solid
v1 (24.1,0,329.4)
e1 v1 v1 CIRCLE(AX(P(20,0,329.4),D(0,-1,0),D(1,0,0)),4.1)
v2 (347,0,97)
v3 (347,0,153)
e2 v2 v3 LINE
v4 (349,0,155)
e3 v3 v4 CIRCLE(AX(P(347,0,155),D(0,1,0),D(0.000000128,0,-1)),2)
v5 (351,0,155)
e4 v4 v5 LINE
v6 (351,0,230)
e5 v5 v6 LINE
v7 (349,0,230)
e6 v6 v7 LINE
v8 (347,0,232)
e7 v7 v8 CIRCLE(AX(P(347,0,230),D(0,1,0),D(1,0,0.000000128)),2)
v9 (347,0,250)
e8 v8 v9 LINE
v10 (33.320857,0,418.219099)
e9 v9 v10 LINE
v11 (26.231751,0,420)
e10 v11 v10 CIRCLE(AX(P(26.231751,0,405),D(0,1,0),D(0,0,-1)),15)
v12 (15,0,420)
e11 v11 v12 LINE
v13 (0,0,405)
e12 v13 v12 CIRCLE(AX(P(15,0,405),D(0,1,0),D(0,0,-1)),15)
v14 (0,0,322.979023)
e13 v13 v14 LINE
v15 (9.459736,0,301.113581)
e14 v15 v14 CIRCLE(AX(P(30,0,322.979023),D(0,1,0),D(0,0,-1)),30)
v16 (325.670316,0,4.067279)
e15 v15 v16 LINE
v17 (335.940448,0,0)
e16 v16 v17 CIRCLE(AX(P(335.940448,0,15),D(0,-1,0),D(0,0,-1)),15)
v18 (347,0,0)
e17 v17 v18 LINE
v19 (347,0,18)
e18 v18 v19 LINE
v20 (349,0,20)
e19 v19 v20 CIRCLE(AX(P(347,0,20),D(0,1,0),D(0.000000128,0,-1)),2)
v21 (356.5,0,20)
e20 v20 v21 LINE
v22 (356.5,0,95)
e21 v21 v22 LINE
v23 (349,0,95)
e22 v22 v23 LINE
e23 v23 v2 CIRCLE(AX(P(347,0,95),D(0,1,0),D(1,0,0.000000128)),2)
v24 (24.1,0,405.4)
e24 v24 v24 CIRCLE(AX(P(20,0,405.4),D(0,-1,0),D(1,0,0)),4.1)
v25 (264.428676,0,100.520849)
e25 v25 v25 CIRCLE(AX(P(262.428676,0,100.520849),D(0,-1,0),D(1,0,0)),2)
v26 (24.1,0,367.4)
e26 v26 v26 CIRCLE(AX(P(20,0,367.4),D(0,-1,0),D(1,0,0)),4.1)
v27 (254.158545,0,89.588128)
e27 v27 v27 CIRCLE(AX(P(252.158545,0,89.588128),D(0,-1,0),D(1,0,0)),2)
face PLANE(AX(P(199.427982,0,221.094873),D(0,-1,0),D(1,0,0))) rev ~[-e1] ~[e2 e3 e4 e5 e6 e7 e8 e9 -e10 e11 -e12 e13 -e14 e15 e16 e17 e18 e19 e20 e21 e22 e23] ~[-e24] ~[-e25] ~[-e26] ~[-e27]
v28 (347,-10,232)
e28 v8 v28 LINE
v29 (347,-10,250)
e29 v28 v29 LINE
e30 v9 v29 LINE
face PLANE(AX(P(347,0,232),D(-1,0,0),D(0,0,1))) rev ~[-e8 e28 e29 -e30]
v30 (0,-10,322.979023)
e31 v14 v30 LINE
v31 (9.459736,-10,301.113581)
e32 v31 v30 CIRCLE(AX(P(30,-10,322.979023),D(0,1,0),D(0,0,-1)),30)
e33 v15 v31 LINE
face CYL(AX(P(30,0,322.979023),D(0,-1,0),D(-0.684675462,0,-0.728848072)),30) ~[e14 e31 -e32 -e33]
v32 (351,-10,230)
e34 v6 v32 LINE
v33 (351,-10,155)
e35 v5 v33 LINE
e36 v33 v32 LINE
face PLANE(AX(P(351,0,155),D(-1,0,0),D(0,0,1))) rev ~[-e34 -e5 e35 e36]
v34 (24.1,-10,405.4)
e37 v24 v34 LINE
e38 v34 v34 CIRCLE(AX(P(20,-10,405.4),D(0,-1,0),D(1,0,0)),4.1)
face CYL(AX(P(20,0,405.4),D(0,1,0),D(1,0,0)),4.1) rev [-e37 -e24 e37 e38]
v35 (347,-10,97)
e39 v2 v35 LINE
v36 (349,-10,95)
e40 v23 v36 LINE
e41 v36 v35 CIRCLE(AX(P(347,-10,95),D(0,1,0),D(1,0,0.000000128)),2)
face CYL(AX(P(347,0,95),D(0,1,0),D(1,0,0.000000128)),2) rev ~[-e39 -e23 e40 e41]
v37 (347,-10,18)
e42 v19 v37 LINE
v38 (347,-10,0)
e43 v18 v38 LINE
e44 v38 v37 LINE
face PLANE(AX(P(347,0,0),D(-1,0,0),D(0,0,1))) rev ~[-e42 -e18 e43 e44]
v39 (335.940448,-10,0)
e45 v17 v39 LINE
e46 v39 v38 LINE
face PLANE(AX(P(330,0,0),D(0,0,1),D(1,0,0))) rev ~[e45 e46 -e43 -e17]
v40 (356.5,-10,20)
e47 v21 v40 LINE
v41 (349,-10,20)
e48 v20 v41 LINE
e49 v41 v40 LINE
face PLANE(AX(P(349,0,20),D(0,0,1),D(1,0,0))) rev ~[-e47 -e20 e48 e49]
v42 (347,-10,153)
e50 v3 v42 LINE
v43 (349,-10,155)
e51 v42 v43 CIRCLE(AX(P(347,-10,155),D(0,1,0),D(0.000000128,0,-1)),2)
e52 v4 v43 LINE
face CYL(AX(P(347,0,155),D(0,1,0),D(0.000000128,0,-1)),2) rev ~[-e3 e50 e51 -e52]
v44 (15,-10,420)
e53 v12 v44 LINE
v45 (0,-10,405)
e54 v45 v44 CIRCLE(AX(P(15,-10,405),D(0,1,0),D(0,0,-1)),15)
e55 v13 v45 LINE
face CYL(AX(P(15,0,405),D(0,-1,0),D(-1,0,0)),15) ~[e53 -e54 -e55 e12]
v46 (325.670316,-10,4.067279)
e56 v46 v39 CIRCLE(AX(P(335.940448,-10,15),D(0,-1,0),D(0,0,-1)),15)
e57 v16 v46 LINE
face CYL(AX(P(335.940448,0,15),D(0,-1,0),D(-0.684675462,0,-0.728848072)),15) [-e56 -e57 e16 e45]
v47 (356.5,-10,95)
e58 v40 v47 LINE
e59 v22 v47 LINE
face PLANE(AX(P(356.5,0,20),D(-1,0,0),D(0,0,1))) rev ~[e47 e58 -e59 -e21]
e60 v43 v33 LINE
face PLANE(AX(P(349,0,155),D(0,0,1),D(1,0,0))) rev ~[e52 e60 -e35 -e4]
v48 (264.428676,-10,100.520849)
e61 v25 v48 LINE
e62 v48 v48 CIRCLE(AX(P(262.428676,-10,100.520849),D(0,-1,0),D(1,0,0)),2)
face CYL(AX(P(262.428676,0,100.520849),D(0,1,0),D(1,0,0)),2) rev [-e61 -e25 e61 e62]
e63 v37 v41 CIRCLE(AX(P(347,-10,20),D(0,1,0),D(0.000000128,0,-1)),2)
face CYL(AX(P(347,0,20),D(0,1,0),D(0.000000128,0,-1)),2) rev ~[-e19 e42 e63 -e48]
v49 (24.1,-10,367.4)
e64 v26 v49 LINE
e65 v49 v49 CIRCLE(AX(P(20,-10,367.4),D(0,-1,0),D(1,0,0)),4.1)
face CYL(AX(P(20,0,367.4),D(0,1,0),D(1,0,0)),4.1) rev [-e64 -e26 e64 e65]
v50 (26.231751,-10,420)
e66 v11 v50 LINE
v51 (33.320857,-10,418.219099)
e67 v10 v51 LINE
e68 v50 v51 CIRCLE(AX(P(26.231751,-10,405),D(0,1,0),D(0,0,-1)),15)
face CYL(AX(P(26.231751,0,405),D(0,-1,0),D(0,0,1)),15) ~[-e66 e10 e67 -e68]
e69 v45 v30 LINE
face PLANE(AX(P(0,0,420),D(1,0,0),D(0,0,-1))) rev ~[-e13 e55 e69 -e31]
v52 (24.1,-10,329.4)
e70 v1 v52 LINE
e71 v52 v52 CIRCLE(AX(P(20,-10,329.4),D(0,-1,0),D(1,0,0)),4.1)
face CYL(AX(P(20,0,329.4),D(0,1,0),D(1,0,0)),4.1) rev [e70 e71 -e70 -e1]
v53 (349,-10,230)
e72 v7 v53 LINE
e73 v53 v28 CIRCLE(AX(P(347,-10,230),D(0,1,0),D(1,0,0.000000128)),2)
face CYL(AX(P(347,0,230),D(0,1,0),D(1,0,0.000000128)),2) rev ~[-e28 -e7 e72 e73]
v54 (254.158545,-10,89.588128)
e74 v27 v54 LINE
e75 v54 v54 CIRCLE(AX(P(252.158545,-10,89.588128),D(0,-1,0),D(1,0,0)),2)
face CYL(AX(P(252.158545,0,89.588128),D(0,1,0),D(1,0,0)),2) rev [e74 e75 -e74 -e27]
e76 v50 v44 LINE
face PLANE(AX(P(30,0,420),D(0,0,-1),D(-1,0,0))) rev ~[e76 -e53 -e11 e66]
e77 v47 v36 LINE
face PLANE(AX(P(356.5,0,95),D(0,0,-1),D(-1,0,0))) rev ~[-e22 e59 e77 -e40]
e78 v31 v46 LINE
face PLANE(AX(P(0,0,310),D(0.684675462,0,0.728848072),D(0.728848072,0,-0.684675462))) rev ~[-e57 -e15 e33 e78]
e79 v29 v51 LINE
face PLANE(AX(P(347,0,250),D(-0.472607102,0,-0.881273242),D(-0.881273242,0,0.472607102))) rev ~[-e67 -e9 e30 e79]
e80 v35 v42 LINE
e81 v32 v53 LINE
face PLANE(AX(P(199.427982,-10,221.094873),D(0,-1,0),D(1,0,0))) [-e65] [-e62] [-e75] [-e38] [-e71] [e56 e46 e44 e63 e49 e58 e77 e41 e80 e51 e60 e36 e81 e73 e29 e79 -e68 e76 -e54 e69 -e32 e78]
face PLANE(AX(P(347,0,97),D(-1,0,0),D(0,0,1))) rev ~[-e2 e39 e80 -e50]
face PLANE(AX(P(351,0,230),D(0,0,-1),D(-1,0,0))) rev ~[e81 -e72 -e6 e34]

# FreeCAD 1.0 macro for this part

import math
import FreeCAD as App
import Part
import Sketcher


def edges_at(feature, points):
    """Names of the edges that pass closest to the given points."""
    edges = feature.Shape.Edges
    near = lambda p: min(range(len(edges)), key=lambda i: edges[i].distToShape(Part.Vertex(*p))[0])
    return sorted({f"Edge{near(p) + 1}" for p in points})

doc = App.newDocument("Part")
params = doc.addObject("Spreadsheet::Sheet", "Params")
for row, (alias, value) in enumerate([
    ("sketch1_diameter", "4 mm"),
    ("sketch1_diameter2", "8.2 mm"),
    ("sketch1_width", "17 mm"),
    ("sketch1_width2", "2 mm"),
    ("sketch1_width3", "30 mm"),
    ("pad1_length", "10 mm"),
    ("fillet_radius", "30 mm"),
    ("fillet2_radius", "15 mm"),
], start=1):
    params.set(f"A{row}", alias)
    params.set(f"B{row}", "=" + value)
    params.setAlias(f"B{row}", alias)

body = doc.addObject("PartDesign::Body", "Body")

sketch1 = doc.addObject("Sketcher::SketchObject", "Sketch")
body.addObject(sketch1)
sketch1.AttachmentSupport = (doc.XZ_Plane, [""])
sketch1.MapMode = "FlatFace"
sketch1.addGeometry([
    Part.LineSegment(App.Vector(0, 310, 0), App.Vector(330, 0, 0)),
    Part.LineSegment(App.Vector(330, 0, 0), App.Vector(347, 0, 0)),
    Part.LineSegment(App.Vector(347, 0, 0), App.Vector(347, 18, 0)),
    Part.ArcOfCircle(Part.Circle(App.Vector(347, 20, 0), App.Vector(0, 0, 1), 2), math.radians(0), math.radians(270)),
    Part.LineSegment(App.Vector(349, 20, 0), App.Vector(356.5, 20, 0)),
    Part.LineSegment(App.Vector(356.5, 20, 0), App.Vector(356.5, 95, 0)),
    Part.LineSegment(App.Vector(356.5, 95, 0), App.Vector(349, 95, 0)),
    Part.ArcOfCircle(Part.Circle(App.Vector(347, 95, 0), App.Vector(0, 0, 1), 2), math.radians(90), math.radians(360)),
    Part.LineSegment(App.Vector(347, 97, 0), App.Vector(347, 153, 0)),
    Part.ArcOfCircle(Part.Circle(App.Vector(347, 155, 0), App.Vector(0, 0, 1), 2), math.radians(0), math.radians(270)),
    Part.LineSegment(App.Vector(349, 155, 0), App.Vector(351, 155, 0)),
    Part.LineSegment(App.Vector(351, 155, 0), App.Vector(351, 230, 0)),
    Part.LineSegment(App.Vector(351, 230, 0), App.Vector(349, 230, 0)),
    Part.ArcOfCircle(Part.Circle(App.Vector(347, 230, 0), App.Vector(0, 0, 1), 2), math.radians(90), math.radians(360)),
    Part.LineSegment(App.Vector(347, 232, 0), App.Vector(347, 250, 0)),
    Part.LineSegment(App.Vector(347, 250, 0), App.Vector(30, 420, 0)),
    Part.LineSegment(App.Vector(30, 420, 0), App.Vector(0, 420, 0)),
    Part.LineSegment(App.Vector(0, 420, 0), App.Vector(0, 310, 0)),
    Part.Circle(App.Vector(252.2, 89.6, 0), App.Vector(0, 0, 1), 2),
    Part.Circle(App.Vector(262.4, 100.5, 0), App.Vector(0, 0, 1), 2),
    Part.Circle(App.Vector(20, 329.4, 0), App.Vector(0, 0, 1), 4.1),
    Part.Circle(App.Vector(20, 367.4, 0), App.Vector(0, 0, 1), 4.1),
    Part.Circle(App.Vector(20, 405.4, 0), App.Vector(0, 0, 1), 4.1),
], False)
sketch1.addConstraint([
    Sketcher.Constraint("Coincident", 0, 2, 1, 1),
    Sketcher.Constraint("Coincident", 1, 2, 2, 1),
    Sketcher.Constraint("Coincident", 2, 2, 3, 2),
    Sketcher.Constraint("Coincident", 3, 1, 4, 1),
    Sketcher.Constraint("Coincident", 4, 2, 5, 1),
    Sketcher.Constraint("Coincident", 5, 2, 6, 1),
    Sketcher.Constraint("Coincident", 6, 2, 7, 2),
    Sketcher.Constraint("Coincident", 7, 1, 8, 1),
    Sketcher.Constraint("Coincident", 8, 2, 9, 2),
    Sketcher.Constraint("Coincident", 9, 1, 10, 1),
    Sketcher.Constraint("Coincident", 10, 2, 11, 1),
    Sketcher.Constraint("Coincident", 11, 2, 12, 1),
    Sketcher.Constraint("Coincident", 12, 2, 13, 2),
    Sketcher.Constraint("Coincident", 13, 1, 14, 1),
    Sketcher.Constraint("Coincident", 14, 2, 15, 1),
    Sketcher.Constraint("Coincident", 15, 2, 16, 1),
    Sketcher.Constraint("Coincident", 16, 2, 17, 1),
    Sketcher.Constraint("Coincident", 17, 2, 0, 1),
    Sketcher.Constraint("Horizontal", 1),
    Sketcher.Constraint("Vertical", 2),
    Sketcher.Constraint("Horizontal", 4),
    Sketcher.Constraint("Vertical", 5),
    Sketcher.Constraint("Horizontal", 6),
    Sketcher.Constraint("Vertical", 8),
    Sketcher.Constraint("Horizontal", 10),
    Sketcher.Constraint("Vertical", 11),
    Sketcher.Constraint("Horizontal", 12),
    Sketcher.Constraint("Vertical", 14),
    Sketcher.Constraint("Horizontal", 16),
    Sketcher.Constraint("Vertical", 17),
    Sketcher.Constraint("Equal", 3, 7),
    Sketcher.Constraint("Equal", 7, 9),
    Sketcher.Constraint("Equal", 9, 13),
    Sketcher.Constraint("Equal", 13, 18),
    Sketcher.Constraint("Equal", 18, 19),
    Sketcher.Constraint("Equal", 20, 21),
    Sketcher.Constraint("Equal", 21, 22),
    Sketcher.Constraint("PointOnObject", 0, 2, -1),
    Sketcher.Constraint("PointOnObject", 16, 2, -2),
    Sketcher.Constraint("Horizontal", 7, 3, 5, 2),
    Sketcher.Constraint("Horizontal", 13, 3, 11, 2),
    Sketcher.Constraint("Vertical", 3, 3, 7, 3),
    Sketcher.Constraint("Vertical", 7, 3, 9, 3),
    Sketcher.Constraint("Vertical", 9, 3, 13, 3),
    Sketcher.Constraint("Vertical", 20, 3, 21, 3),
    Sketcher.Constraint("Vertical", 21, 3, 22, 3),
    Sketcher.Constraint("Vertical", 13, 3, 1, 2),
    Sketcher.Constraint("Vertical", 2, 2, 7, 1),
    Sketcher.Constraint("Vertical", 8, 2, 13, 1),
    Sketcher.Constraint("Equal", 5, 11),
    Sketcher.Constraint("Equal", 2, 14),
    Sketcher.Constraint("Diameter", 18, 4.0),
    Sketcher.Constraint("Diameter", 20, 8.2),
    Sketcher.Constraint("DistanceX", 1, 1, 1, 2, 17.0),
    Sketcher.Constraint("DistanceX", 10, 1, 10, 2, 2.0),
    Sketcher.Constraint("DistanceX", 16, 2, 16, 1, 30.0),
    Sketcher.Constraint("DistanceY", 2, 1, 2, 2, 18.0),
    Sketcher.Constraint("DistanceY", 5, 1, 5, 2, 75.0),
    Sketcher.Constraint("DistanceY", 8, 1, 8, 2, 56.0),
    Sketcher.Constraint("DistanceY", 17, 2, 17, 1, 110.0),
    Sketcher.Constraint("DistanceX", 4, 1, 4, 2, 7.5),
    Sketcher.Constraint("DistanceX", -1, 1, 3, 3, 347.0),
    Sketcher.Constraint("DistanceY", -1, 1, 7, 3, 95.0),
    Sketcher.Constraint("DistanceY", -1, 1, 13, 3, 230.0),
    Sketcher.Constraint("DistanceX", -1, 1, 20, 3, 20.0),
    Sketcher.Constraint("DistanceY", -1, 1, 15, 2, 420.0),
    Sketcher.Constraint("DistanceY", 20, 3, 21, 3, 38.0),
    Sketcher.Constraint("DistanceY", 21, 3, 22, 3, 38.0),
    Sketcher.Constraint("DistanceY", -1, 1, 20, 3, 329.4),
    Sketcher.Constraint("DistanceY", -1, 1, 19, 3, 100.520849),
    Sketcher.Constraint("DistanceY", 18, 3, 7, 3, 5.411872),
    Sketcher.Constraint("DistanceX", 18, 3, 19, 3, 10.270131),
    Sketcher.Constraint("DistanceX", -1, 1, 18, 3, 252.158545),
])
sketch1.setExpression("Constraints[51]", "Params.sketch1_diameter")
sketch1.setExpression("Constraints[52]", "Params.sketch1_diameter2")
sketch1.setExpression("Constraints[53]", "Params.sketch1_width")
sketch1.setExpression("Constraints[54]", "Params.sketch1_width2")
sketch1.setExpression("Constraints[55]", "Params.sketch1_width3")
pad1 = doc.addObject("PartDesign::Pad", "Pad")
body.addObject(pad1)
pad1.Profile = sketch1
pad1.setExpression("Length", "Params.pad1_length")
doc.recompute()

fillet = doc.addObject("PartDesign::Fillet", "Fillet")
body.addObject(fillet)
fillet.Base = (pad1, edges_at(pad1, [(0, -5, 310)]))
fillet.setExpression("Radius", "Params.fillet_radius")
doc.recompute()

fillet2 = doc.addObject("PartDesign::Fillet", "Fillet001")
body.addObject(fillet2)
fillet2.Base = (fillet, edges_at(fillet, [(0, -5, 420), (30, -5, 420), (330, -5, 0)]))
fillet2.setExpression("Radius", "Params.fillet2_radius")

doc.recompute()
